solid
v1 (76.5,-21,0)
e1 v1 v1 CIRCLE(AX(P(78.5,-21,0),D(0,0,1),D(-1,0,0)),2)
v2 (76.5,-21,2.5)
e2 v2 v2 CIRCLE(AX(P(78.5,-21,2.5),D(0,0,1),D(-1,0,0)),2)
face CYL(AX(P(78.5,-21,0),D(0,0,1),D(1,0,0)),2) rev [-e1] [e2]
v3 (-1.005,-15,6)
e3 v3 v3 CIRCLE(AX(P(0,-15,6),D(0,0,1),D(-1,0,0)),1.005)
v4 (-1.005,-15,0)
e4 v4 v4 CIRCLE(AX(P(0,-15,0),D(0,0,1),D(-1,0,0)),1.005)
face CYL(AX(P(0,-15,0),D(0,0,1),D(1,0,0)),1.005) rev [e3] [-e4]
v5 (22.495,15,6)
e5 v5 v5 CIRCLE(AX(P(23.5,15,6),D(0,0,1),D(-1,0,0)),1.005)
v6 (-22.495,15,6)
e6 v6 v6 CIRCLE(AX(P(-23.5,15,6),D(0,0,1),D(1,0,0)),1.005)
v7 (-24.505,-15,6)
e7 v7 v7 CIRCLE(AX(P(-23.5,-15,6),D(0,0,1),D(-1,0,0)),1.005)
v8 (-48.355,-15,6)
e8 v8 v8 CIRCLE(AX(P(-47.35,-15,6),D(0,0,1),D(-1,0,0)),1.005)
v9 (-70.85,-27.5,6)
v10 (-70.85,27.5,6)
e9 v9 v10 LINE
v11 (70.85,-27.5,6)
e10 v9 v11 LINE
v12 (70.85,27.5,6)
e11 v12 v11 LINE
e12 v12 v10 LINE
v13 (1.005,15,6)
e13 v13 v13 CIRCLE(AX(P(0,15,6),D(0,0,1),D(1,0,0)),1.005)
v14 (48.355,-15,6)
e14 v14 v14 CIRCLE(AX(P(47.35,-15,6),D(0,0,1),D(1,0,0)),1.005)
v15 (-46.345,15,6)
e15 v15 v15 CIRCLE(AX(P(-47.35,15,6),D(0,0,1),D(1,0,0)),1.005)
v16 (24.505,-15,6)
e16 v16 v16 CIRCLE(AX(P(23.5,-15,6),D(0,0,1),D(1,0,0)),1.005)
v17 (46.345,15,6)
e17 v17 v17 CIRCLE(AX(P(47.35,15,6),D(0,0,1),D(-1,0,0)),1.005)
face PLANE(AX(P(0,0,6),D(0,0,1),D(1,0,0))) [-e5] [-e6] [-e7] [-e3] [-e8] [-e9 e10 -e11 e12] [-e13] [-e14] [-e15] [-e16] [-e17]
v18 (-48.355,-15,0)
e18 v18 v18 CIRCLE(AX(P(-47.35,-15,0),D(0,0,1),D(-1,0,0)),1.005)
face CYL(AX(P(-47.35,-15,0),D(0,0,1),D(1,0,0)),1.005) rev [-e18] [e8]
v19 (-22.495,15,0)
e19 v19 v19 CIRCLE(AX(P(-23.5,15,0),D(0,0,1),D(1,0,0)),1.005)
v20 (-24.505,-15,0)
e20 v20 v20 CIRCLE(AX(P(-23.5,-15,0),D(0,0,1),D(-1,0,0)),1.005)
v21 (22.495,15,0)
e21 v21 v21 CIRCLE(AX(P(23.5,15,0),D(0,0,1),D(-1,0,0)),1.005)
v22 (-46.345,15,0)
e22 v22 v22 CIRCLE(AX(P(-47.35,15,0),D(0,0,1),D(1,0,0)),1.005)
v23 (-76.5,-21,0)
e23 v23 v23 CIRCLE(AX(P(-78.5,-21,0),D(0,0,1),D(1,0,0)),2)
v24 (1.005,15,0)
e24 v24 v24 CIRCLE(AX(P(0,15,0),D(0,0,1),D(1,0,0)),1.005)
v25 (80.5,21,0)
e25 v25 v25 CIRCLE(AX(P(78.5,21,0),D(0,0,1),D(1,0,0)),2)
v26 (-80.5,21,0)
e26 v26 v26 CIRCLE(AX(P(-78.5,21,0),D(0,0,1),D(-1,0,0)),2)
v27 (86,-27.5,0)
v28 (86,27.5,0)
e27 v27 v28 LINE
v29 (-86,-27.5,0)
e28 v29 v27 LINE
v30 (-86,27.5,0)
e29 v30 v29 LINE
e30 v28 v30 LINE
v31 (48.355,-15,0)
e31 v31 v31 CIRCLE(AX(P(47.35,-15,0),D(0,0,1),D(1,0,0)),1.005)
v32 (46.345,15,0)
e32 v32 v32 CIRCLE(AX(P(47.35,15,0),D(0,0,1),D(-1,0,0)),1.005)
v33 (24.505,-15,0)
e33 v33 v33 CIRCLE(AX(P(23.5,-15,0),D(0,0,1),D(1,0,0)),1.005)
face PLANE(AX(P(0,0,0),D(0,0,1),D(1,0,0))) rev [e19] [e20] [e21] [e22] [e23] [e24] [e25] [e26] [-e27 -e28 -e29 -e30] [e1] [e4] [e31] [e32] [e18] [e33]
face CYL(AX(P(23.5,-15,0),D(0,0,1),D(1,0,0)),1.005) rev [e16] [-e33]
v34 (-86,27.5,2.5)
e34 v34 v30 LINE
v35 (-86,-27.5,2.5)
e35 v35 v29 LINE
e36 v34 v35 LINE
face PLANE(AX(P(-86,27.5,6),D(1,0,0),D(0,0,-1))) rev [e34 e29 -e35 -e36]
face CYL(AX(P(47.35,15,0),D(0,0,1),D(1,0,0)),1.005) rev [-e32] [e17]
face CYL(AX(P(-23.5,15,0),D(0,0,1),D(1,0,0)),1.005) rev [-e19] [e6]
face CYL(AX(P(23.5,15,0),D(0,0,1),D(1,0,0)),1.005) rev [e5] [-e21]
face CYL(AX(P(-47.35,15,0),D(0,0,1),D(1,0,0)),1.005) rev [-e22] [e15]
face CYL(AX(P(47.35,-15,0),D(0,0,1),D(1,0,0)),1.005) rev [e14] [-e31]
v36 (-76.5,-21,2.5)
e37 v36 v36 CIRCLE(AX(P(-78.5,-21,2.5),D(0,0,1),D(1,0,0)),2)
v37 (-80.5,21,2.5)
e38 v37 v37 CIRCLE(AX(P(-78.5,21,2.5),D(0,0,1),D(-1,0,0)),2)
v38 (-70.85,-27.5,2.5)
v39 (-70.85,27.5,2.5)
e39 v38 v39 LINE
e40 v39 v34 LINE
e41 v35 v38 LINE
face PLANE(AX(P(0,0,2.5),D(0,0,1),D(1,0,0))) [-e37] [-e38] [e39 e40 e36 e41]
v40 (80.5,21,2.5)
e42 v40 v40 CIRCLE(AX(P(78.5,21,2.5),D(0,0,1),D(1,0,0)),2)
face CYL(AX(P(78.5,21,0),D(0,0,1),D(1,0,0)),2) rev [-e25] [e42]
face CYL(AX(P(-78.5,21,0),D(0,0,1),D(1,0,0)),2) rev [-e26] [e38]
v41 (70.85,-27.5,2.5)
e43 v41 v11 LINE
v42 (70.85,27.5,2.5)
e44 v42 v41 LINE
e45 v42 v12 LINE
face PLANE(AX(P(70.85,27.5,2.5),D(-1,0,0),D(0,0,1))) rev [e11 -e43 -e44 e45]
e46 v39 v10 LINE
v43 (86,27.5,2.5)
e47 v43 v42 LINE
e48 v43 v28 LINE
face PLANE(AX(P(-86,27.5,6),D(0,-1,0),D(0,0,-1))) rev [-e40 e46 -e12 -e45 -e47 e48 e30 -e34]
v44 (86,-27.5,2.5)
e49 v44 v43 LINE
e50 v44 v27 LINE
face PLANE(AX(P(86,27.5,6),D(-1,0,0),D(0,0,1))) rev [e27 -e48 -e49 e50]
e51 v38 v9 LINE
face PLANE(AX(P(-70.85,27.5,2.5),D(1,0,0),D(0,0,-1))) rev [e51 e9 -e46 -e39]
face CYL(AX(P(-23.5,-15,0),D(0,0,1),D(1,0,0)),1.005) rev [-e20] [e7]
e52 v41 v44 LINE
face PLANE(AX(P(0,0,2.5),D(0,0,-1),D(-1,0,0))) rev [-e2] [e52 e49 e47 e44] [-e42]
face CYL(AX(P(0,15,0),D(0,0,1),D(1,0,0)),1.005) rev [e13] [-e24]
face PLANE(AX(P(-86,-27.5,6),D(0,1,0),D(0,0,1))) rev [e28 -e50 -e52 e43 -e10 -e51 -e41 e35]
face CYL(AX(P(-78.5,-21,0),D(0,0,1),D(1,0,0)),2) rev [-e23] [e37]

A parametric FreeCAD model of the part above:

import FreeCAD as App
import Part
import Sketcher

V = App.Vector

doc = App.newDocument("Part")
body = doc.addObject("PartDesign::Body", "Body")

sketch1 = body.newObject("Sketcher::SketchObject", "Sketch")
sketch1.AttachmentSupport = (doc.getObject("XY_Plane"), [""])
sketch1.MapMode = "FlatFace"
sketch1.addGeometry(Part.LineSegment(V(-86, 28, 0), V(-86, -28, 0)), False)
sketch1.addGeometry(Part.LineSegment(V(-86, -28, 0), V(86, -28, 0)), False)
sketch1.addGeometry(Part.LineSegment(V(86, -28, 0), V(86, 28, 0)), False)
sketch1.addGeometry(Part.LineSegment(V(86, 28, 0), V(-86, 28, 0)), False)
sketch1.addConstraint(Sketcher.Constraint("Coincident", 0, 2, 1, 1))
sketch1.addConstraint(Sketcher.Constraint("Coincident", 1, 2, 2, 1))
sketch1.addConstraint(Sketcher.Constraint("Coincident", 2, 2, 3, 1))
sketch1.addConstraint(Sketcher.Constraint("Coincident", 3, 2, 0, 1))
sketch1.addConstraint(Sketcher.Constraint("Vertical", 0))
sketch1.addConstraint(Sketcher.Constraint("Horizontal", 1))
sketch1.addConstraint(Sketcher.Constraint("Vertical", 2))
sketch1.addConstraint(Sketcher.Constraint("Horizontal", 3))
sketch1.addConstraint(Sketcher.Constraint("Symmetric", 0, 2, 2, 2, -1, 1))
sketch1.addConstraint(Sketcher.Constraint("DistanceX", 1, 1, 1, 2, 172.0))
sketch1.addConstraint(Sketcher.Constraint("DistanceY", 0, 2, 0, 1, 55.0))
pad1 = body.newObject("PartDesign::Pad", "Pad")
pad1.Profile = sketch1
pad1.Length = 6

sketch2 = body.newObject("Sketcher::SketchObject", "Sketch001")
sketch2.AttachmentSupport = (doc.getObject("XY_Plane"), [""])
sketch2.MapMode = "FlatFace"
sketch2.AttachmentOffset = App.Placement(V(0, 0, 6), App.Rotation())
sketch2.addGeometry(Part.LineSegment(V(-86, 28, 0), V(-86, -28, 0)), False)
sketch2.addGeometry(Part.LineSegment(V(-86, -28, 0), V(-71, -28, 0)), False)
sketch2.addGeometry(Part.LineSegment(V(-71, -28, 0), V(-71, 28, 0)), False)
sketch2.addGeometry(Part.LineSegment(V(-71, 28, 0), V(-86, 28, 0)), False)
sketch2.addGeometry(Part.LineSegment(V(71, 28, 0), V(71, -28, 0)), False)
sketch2.addGeometry(Part.LineSegment(V(71, -28, 0), V(86, -28, 0)), False)
sketch2.addGeometry(Part.LineSegment(V(86, -28, 0), V(86, 28, 0)), False)
sketch2.addGeometry(Part.LineSegment(V(86, 28, 0), V(71, 28, 0)), False)
sketch2.addConstraint(Sketcher.Constraint("Coincident", 0, 2, 1, 1))
sketch2.addConstraint(Sketcher.Constraint("Coincident", 1, 2, 2, 1))
sketch2.addConstraint(Sketcher.Constraint("Coincident", 2, 2, 3, 1))
sketch2.addConstraint(Sketcher.Constraint("Coincident", 3, 2, 0, 1))
sketch2.addConstraint(Sketcher.Constraint("Coincident", 4, 2, 5, 1))
sketch2.addConstraint(Sketcher.Constraint("Coincident", 5, 2, 6, 1))
sketch2.addConstraint(Sketcher.Constraint("Coincident", 6, 2, 7, 1))
sketch2.addConstraint(Sketcher.Constraint("Coincident", 7, 2, 4, 1))
sketch2.addConstraint(Sketcher.Constraint("Vertical", 0))
sketch2.addConstraint(Sketcher.Constraint("Horizontal", 1))
sketch2.addConstraint(Sketcher.Constraint("Vertical", 2))
sketch2.addConstraint(Sketcher.Constraint("Horizontal", 3))
sketch2.addConstraint(Sketcher.Constraint("Vertical", 4))
sketch2.addConstraint(Sketcher.Constraint("Horizontal", 5))
sketch2.addConstraint(Sketcher.Constraint("Vertical", 6))
sketch2.addConstraint(Sketcher.Constraint("Horizontal", 7))
sketch2.addConstraint(Sketcher.Constraint("Symmetric", 2, 2, 4, 2, -1, 1))
sketch2.addConstraint(Sketcher.Constraint("Symmetric", 0, 2, 6, 2, -1, 1))
sketch2.addConstraint(Sketcher.Constraint("Horizontal", 1, 2, 4, 2))
sketch2.addConstraint(Sketcher.Constraint("DistanceY", 0, 2, 0, 1, 55.0))
sketch2.addConstraint(Sketcher.Constraint("DistanceX", 0, 2, -1, 1, 86.0))
sketch2.addConstraint(Sketcher.Constraint("DistanceX", 1, 1, 1, 2, 15.15))
pocket1 = body.newObject("PartDesign::Pocket", "Pocket")
pocket1.Profile = sketch2
pocket1.Length = 3.5

sketch3 = body.newObject("Sketcher::SketchObject", "Sketch002")
sketch3.AttachmentSupport = (doc.getObject("XY_Plane"), [""])
sketch3.MapMode = "FlatFace"
sketch3.AttachmentOffset = App.Placement(V(0, 0, 2.5), App.Rotation())
sketch3.addGeometry(Part.Circle(V(-78.5, 21, 0), V(0, 0, 1), 2), False)
sketch3.addGeometry(Part.Circle(V(-78.5, -21, 0), V(0, 0, 1), 2), False)
sketch3.addGeometry(Part.Circle(V(78.5, -21, 0), V(0, 0, 1), 2), False)
sketch3.addGeometry(Part.Circle(V(78.5, 21, 0), V(0, 0, 1), 2), False)
sketch3.addConstraint(Sketcher.Constraint("Equal", 0, 1))
sketch3.addConstraint(Sketcher.Constraint("Equal", 1, 2))
sketch3.addConstraint(Sketcher.Constraint("Equal", 2, 3))
sketch3.addConstraint(Sketcher.Constraint("Symmetric", 0, 3, 2, 3, -1, 1))
sketch3.addConstraint(Sketcher.Constraint("Symmetric", 1, 3, 3, 3, -1, 1))
sketch3.addConstraint(Sketcher.Constraint("Symmetric", 1, 3, 2, 3, -2))
sketch3.addConstraint(Sketcher.Constraint("Diameter", 0, 4.0))
sketch3.addConstraint(Sketcher.Constraint("DistanceY", -1, 1, 0, 3, 21.0))
sketch3.addConstraint(Sketcher.Constraint("DistanceX", 1, 3, 2, 3, 157.0))
pocket2 = body.newObject("PartDesign::Pocket", "Pocket001")
pocket2.Profile = sketch3
pocket2.Type = "ThroughAll"

sketch4 = body.newObject("Sketcher::SketchObject", "Sketch003")
sketch4.AttachmentSupport = (doc.getObject("XY_Plane"), [""])
sketch4.MapMode = "FlatFace"
sketch4.AttachmentOffset = App.Placement(V(0, 0, 6), App.Rotation())
sketch4.addGeometry(Part.Circle(V(-47.4, 15, 0), V(0, 0, 1), 1), False)
sketch4.addGeometry(Part.Circle(V(-23.5, 15, 0), V(0, 0, 1), 1), False)
sketch4.addGeometry(Part.Circle(V(23.5, 15, 0), V(0, 0, 1), 1), False)
sketch4.addGeometry(Part.Circle(V(47.4, 15, 0), V(0, 0, 1), 1), False)
sketch4.addGeometry(Part.Circle(V(47.4, -15, 0), V(0, 0, 1), 1), False)
sketch4.addGeometry(Part.Circle(V(23.5, -15, 0), V(0, 0, 1), 1), False)
sketch4.addGeometry(Part.Circle(V(-23.5, -15, 0), V(0, 0, 1), 1), False)
sketch4.addGeometry(Part.Circle(V(-47.4, -15, 0), V(0, 0, 1), 1), False)
sketch4.addGeometry(Part.Circle(V(0, 15, 0), V(0, 0, 1), 1), False)
sketch4.addGeometry(Part.Circle(V(0, -15, 0), V(0, 0, 1), 1), False)
sketch4.addConstraint(Sketcher.Constraint("Equal", 0, 1))
sketch4.addConstraint(Sketcher.Constraint("Equal", 1, 2))
sketch4.addConstraint(Sketcher.Constraint("Equal", 2, 3))
sketch4.addConstraint(Sketcher.Constraint("Equal", 3, 4))
sketch4.addConstraint(Sketcher.Constraint("Equal", 4, 5))
sketch4.addConstraint(Sketcher.Constraint("Equal", 5, 6))
sketch4.addConstraint(Sketcher.Constraint("Equal", 6, 7))
sketch4.addConstraint(Sketcher.Constraint("Equal", 7, 8))
sketch4.addConstraint(Sketcher.Constraint("Equal", 8, 9))
sketch4.addConstraint(Sketcher.Constraint("Symmetric", 0, 3, 4, 3, -1, 1))
sketch4.addConstraint(Sketcher.Constraint("Symmetric", 1, 3, 5, 3, -1, 1))
sketch4.addConstraint(Sketcher.Constraint("Symmetric", 2, 3, 6, 3, -1, 1))
sketch4.addConstraint(Sketcher.Constraint("Symmetric", 3, 3, 7, 3, -1, 1))
sketch4.addConstraint(Sketcher.Constraint("Symmetric", 8, 3, 9, 3, -1, 1))
sketch4.addConstraint(Sketcher.Constraint("Symmetric", 1, 3, 2, 3, -2))
sketch4.addConstraint(Sketcher.Constraint("Symmetric", 0, 3, 3, 3, -2))
sketch4.addConstraint(Sketcher.Constraint("PointOnObject", 8, 3, -2))
sketch4.addConstraint(Sketcher.Constraint("Horizontal", 0, 3, 1, 3))
sketch4.addConstraint(Sketcher.Constraint("Horizontal", 3, 3, 8, 3))
sketch4.addConstraint(Sketcher.Constraint("Diameter", 0, 2.01))
sketch4.addConstraint(Sketcher.Constraint("DistanceY", -1, 1, 0, 3, 15.0))
sketch4.addConstraint(Sketcher.Constraint("DistanceX", 1, 3, 2, 3, 47.0))
sketch4.addConstraint(Sketcher.Constraint("DistanceX", 0, 3, 3, 3, 94.7))
pocket3 = body.newObject("PartDesign::Pocket", "Pocket002")
pocket3.Profile = sketch4
pocket3.Type = "ThroughAll"

doc.recompute()
